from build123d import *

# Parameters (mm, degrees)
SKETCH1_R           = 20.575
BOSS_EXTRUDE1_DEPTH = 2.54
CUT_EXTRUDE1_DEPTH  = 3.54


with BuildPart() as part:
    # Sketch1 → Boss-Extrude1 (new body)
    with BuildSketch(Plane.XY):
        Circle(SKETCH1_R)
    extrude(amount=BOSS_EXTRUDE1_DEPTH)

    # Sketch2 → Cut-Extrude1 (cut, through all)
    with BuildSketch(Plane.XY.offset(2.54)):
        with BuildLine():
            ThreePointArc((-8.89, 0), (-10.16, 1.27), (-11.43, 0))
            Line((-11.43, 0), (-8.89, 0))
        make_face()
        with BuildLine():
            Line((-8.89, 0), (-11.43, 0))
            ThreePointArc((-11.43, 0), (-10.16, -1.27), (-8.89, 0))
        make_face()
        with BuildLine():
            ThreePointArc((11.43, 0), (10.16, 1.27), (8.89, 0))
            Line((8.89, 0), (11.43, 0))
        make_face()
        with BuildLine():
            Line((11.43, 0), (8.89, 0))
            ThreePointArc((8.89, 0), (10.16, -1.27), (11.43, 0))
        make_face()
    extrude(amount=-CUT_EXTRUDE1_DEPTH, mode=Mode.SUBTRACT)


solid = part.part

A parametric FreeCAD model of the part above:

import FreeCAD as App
import Part
import Sketcher
Q = App.Units.Quantity

doc = App.newDocument("Part")
body = doc.addObject("PartDesign::Body", "Body")

# Sketch on XY plane
sketch1 = body.newObject("Sketcher::SketchObject", "Sketch")
sketch1.AttachmentSupport = (doc.getObject("XY_Plane"), [""])
sketch1.MapMode = "FlatFace"
sketch1.addGeometry(Part.Circle(App.Vector(0, 0, 0), App.Vector(0, 0, 1), 21), False)
sketch1.addConstraint(Sketcher.Constraint("Coincident", 0, 3, -1, 1))
sketch1.addConstraint(Sketcher.Constraint("Diameter", 0, 41.15))
pad1 = body.newObject("PartDesign::Pad", "Pad")
pad1.Profile = sketch1
pad1.Length = Q("0.1 in")

# Sketch on XY plane
sketch2 = body.newObject("Sketcher::SketchObject", "Sketch001")
sketch2.AttachmentSupport = (doc.getObject("XY_Plane"), [""])
sketch2.MapMode = "FlatFace"
sketch2.AttachmentOffset = App.Placement(App.Vector(0, 0, 0.1 * 25.4), App.Rotation())
sketch2.addGeometry(Part.Circle(App.Vector(-10.2, 0, 0), App.Vector(0, 0, 1), 1.3), False)
sketch2.addGeometry(Part.Circle(App.Vector(10.2, 0, 0), App.Vector(0, 0, 1), 1.3), False)
sketch2.addConstraint(Sketcher.Constraint("Equal", 0, 1))
sketch2.addConstraint(Sketcher.Constraint("Symmetric", 0, 3, 1, 3, -1, 1))
sketch2.addConstraint(Sketcher.Constraint("PointOnObject", 0, 3, -1))
sketch2.addConstraint(Sketcher.Constraint("Diameter", 0, Q("0.1 in")))
sketch2.addConstraint(Sketcher.Constraint("DistanceX", 0, 3, -1, 1, Q("0.4 in")))
pocket1 = body.newObject("PartDesign::Pocket", "Pocket")
pocket1.Profile = sketch2
pocket1.Type = "ThroughAll"

doc.recompute()
